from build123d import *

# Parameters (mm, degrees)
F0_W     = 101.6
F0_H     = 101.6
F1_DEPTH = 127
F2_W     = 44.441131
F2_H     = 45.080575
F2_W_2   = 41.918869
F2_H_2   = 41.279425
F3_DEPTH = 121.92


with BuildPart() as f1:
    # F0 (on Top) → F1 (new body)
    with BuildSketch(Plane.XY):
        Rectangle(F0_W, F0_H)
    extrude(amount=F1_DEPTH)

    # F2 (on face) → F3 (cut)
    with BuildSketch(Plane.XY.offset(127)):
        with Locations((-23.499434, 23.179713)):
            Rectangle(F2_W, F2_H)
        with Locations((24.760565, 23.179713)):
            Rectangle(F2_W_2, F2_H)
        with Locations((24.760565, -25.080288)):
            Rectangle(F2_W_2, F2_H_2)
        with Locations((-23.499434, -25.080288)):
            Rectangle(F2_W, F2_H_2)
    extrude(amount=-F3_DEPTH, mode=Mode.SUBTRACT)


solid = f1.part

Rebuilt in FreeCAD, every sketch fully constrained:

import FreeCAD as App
import Part
import Sketcher
Q = App.Units.Quantity

doc = App.newDocument("Part")
params = doc.addObject("Spreadsheet::Sheet", "Params")
for row, (alias, value) in enumerate([
    ("sketch1_width", "4 in"),
    ("pad1_length", "5 in"),
    ("pocket1_length", "4.8 in"),
], start=1):
    params.set(f"A{row}", alias)
    params.set(f"B{row}", "=" + value)
    params.setAlias(f"B{row}", alias)

body = doc.addObject("PartDesign::Body", "Body")

sketch1 = body.newObject("Sketcher::SketchObject", "Sketch")
sketch1.AttachmentSupport = (doc.getObject("XY_Plane"), [""])
sketch1.MapMode = "FlatFace"
sketch1.addGeometry([
    Part.LineSegment(App.Vector(-51, 51, 0), App.Vector(-51, -51, 0)),
    Part.LineSegment(App.Vector(-51, -51, 0), App.Vector(51, -51, 0)),
    Part.LineSegment(App.Vector(51, -51, 0), App.Vector(51, 51, 0)),
    Part.LineSegment(App.Vector(51, 51, 0), App.Vector(-51, 51, 0)),
], False)
sketch1.addConstraint([
    Sketcher.Constraint("Coincident", 0, 2, 1, 1),
    Sketcher.Constraint("Coincident", 1, 2, 2, 1),
    Sketcher.Constraint("Coincident", 2, 2, 3, 1),
    Sketcher.Constraint("Coincident", 3, 2, 0, 1),
    Sketcher.Constraint("Vertical", 0),
    Sketcher.Constraint("Horizontal", 1),
    Sketcher.Constraint("Vertical", 2),
    Sketcher.Constraint("Horizontal", 3),
    Sketcher.Constraint("Symmetric", 0, 2, 2, 2, -1, 1),
    Sketcher.Constraint("Equal", 3, 0),
    Sketcher.Constraint("DistanceX", 1, 1, 1, 2, Q("4 in")),
])
sketch1.setExpression("Constraints[10]", "Params.sketch1_width")
pad1 = body.newObject("PartDesign::Pad", "Pad")
pad1.Profile = sketch1
pad1.setExpression("Length", "Params.pad1_length")

sketch2 = body.newObject("Sketcher::SketchObject", "Sketch001")
sketch2.AttachmentSupport = (doc.getObject("XY_Plane"), [""])
sketch2.MapMode = "FlatFace"
sketch2.AttachmentOffset = App.Placement(App.Vector(0, 0, 5 * 25.4), App.Rotation())
sketch2.addGeometry([
    Part.LineSegment(App.Vector(-46, 46, 0), App.Vector(-46, 1, 0)),
    Part.LineSegment(App.Vector(-46, 1, 0), App.Vector(-1, 1, 0)),
    Part.LineSegment(App.Vector(-1, 1, 0), App.Vector(-1, 46, 0)),
    Part.LineSegment(App.Vector(-1, 46, 0), App.Vector(-46, 46, 0)),
    Part.LineSegment(App.Vector(4, 46, 0), App.Vector(4, 1, 0)),
    Part.LineSegment(App.Vector(4, 1, 0), App.Vector(46, 1, 0)),
    Part.LineSegment(App.Vector(46, 1, 0), App.Vector(46, 46, 0)),
    Part.LineSegment(App.Vector(46, 46, 0), App.Vector(4, 46, 0)),
    Part.LineSegment(App.Vector(4, -4, 0), App.Vector(4, -46, 0)),
    Part.LineSegment(App.Vector(4, -46, 0), App.Vector(46, -46, 0)),
    Part.LineSegment(App.Vector(46, -46, 0), App.Vector(46, -4, 0)),
    Part.LineSegment(App.Vector(46, -4, 0), App.Vector(4, -4, 0)),
    Part.LineSegment(App.Vector(-46, -4, 0), App.Vector(-46, -46, 0)),
    Part.LineSegment(App.Vector(-46, -46, 0), App.Vector(-1, -46, 0)),
    Part.LineSegment(App.Vector(-1, -46, 0), App.Vector(-1, -4, 0)),
    Part.LineSegment(App.Vector(-1, -4, 0), App.Vector(-46, -4, 0)),
], False)
sketch2.addConstraint([
    Sketcher.Constraint("Coincident", 0, 2, 1, 1),
    Sketcher.Constraint("Coincident", 1, 2, 2, 1),
    Sketcher.Constraint("Coincident", 2, 2, 3, 1),
    Sketcher.Constraint("Coincident", 3, 2, 0, 1),
    Sketcher.Constraint("Coincident", 4, 2, 5, 1),
    Sketcher.Constraint("Coincident", 5, 2, 6, 1),
    Sketcher.Constraint("Coincident", 6, 2, 7, 1),
    Sketcher.Constraint("Coincident", 7, 2, 4, 1),
    Sketcher.Constraint("Coincident", 8, 2, 9, 1),
    Sketcher.Constraint("Coincident", 9, 2, 10, 1),
    Sketcher.Constraint("Coincident", 10, 2, 11, 1),
    Sketcher.Constraint("Coincident", 11, 2, 8, 1),
    Sketcher.Constraint("Coincident", 12, 2, 13, 1),
    Sketcher.Constraint("Coincident", 13, 2, 14, 1),
    Sketcher.Constraint("Coincident", 14, 2, 15, 1),
    Sketcher.Constraint("Coincident", 15, 2, 12, 1),
    Sketcher.Constraint("Vertical", 0),
    Sketcher.Constraint("Horizontal", 1),
    Sketcher.Constraint("Vertical", 2),
    Sketcher.Constraint("Horizontal", 3),
    Sketcher.Constraint("Vertical", 4),
    Sketcher.Constraint("Horizontal", 5),
    Sketcher.Constraint("Vertical", 6),
    Sketcher.Constraint("Horizontal", 7),
    Sketcher.Constraint("Vertical", 8),
    Sketcher.Constraint("Horizontal", 9),
    Sketcher.Constraint("Vertical", 10),
    Sketcher.Constraint("Horizontal", 11),
    Sketcher.Constraint("Vertical", 12),
    Sketcher.Constraint("Horizontal", 13),
    Sketcher.Constraint("Vertical", 14),
    Sketcher.Constraint("Horizontal", 15),
    Sketcher.Constraint("Symmetric", 3, 2, 9, 2, -1, 1),
    Sketcher.Constraint("Symmetric", 6, 2, 12, 2, -1, 1),
    Sketcher.Constraint("Symmetric", 0, 2, 5, 2, -2),
    Sketcher.Constraint("Symmetric", 7, 2, 8, 2, -1),
    Sketcher.Constraint("Horizontal", 11, 2, 14, 2),
    Sketcher.Constraint("Vertical", 2, 2, 13, 2),
    Sketcher.Constraint("DistanceX", 0, 2, -1, 1, Q("1.8 in")),
    Sketcher.Constraint("DistanceY", -1, 1, 2, 2, Q("1.8 in")),
    Sketcher.Constraint("DistanceX", 1, 2, 4, 2, Q("0.2 in")),
    Sketcher.Constraint("DistanceY", 10, 2, 5, 2, Q("0.2 in")),
    Sketcher.Constraint("DistanceX", 1, 1, 1, 2, Q("44.441131 mm")),
    Sketcher.Constraint("DistanceY", 0, 2, 0, 1, Q("45.080575 mm")),
])
pocket1 = body.newObject("PartDesign::Pocket", "Pocket")
pocket1.Profile = sketch2
pocket1.setExpression("Length", "Params.pocket1_length")

doc.recompute()
